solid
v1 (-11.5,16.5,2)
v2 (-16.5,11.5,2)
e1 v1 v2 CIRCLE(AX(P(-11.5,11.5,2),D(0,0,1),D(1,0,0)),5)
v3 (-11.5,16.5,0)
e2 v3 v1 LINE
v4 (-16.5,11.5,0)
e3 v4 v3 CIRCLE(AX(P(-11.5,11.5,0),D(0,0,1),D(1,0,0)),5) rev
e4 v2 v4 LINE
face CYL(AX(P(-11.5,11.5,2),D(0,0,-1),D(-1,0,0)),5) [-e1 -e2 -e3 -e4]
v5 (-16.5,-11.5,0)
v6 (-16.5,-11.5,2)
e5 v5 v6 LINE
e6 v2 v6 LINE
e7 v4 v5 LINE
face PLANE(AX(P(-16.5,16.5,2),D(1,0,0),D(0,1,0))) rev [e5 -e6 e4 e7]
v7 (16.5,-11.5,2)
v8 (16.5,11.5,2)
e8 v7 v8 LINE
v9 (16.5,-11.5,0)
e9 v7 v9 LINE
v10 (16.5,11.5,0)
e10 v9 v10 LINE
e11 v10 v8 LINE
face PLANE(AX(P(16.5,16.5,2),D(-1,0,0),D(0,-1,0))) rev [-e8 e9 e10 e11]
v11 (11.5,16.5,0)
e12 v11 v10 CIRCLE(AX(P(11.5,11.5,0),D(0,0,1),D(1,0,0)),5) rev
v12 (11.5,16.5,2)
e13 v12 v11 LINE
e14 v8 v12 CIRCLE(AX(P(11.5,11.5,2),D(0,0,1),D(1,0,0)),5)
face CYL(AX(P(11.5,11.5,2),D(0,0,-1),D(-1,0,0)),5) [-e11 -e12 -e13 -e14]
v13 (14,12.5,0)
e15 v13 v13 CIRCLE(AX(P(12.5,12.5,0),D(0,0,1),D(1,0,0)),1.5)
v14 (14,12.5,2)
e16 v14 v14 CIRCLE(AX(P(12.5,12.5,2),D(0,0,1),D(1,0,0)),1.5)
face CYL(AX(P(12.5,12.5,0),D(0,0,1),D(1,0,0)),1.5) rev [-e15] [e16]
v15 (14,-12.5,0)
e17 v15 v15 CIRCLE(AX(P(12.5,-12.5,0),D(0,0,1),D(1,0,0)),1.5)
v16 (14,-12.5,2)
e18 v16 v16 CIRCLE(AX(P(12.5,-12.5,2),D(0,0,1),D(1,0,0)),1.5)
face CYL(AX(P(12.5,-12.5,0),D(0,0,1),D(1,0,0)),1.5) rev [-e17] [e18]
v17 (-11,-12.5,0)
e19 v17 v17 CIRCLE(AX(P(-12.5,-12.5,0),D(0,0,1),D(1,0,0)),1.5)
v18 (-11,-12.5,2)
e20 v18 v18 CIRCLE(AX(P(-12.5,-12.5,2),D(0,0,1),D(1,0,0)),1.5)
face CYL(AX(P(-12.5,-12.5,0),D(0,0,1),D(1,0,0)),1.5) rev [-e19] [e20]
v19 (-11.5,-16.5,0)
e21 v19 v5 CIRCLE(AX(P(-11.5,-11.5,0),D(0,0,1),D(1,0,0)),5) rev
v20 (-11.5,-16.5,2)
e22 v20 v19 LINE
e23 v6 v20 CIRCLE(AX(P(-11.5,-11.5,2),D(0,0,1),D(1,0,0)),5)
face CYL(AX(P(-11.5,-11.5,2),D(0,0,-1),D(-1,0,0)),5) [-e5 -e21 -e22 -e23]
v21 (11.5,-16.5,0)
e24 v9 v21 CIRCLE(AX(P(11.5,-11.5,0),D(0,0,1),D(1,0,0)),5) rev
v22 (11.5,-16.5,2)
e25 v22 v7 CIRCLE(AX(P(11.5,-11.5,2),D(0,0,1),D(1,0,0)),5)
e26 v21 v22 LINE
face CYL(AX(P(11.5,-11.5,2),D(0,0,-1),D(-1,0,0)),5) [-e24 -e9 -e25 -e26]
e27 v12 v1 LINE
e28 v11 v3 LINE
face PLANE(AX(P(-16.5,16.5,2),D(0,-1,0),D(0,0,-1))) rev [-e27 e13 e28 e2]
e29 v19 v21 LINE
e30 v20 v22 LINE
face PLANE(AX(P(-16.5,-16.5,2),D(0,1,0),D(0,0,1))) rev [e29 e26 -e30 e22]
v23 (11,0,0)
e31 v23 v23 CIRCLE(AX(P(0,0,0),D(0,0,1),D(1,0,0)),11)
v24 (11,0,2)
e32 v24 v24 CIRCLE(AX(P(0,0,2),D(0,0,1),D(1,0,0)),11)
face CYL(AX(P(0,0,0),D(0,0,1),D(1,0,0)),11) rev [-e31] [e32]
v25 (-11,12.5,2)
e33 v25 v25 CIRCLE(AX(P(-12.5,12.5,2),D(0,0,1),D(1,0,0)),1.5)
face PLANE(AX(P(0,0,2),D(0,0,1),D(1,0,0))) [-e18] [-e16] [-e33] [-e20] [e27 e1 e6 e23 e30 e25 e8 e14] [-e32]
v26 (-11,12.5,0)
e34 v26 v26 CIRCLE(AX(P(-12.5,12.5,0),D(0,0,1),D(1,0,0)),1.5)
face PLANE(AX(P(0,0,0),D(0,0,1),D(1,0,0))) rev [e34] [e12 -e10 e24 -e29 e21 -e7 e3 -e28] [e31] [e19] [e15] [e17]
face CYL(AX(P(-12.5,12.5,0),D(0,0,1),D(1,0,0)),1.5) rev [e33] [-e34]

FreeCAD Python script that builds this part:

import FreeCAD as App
import Part
import Sketcher

V = App.Vector


def edges_at(feature, points):
    """Names of the edges that pass closest to the given points."""
    edges = feature.Shape.Edges
    near = lambda p: min(range(len(edges)), key=lambda i: edges[i].distToShape(Part.Vertex(*p))[0])
    return sorted({f"Edge{near(p) + 1}" for p in points})

doc = App.newDocument("Part")
body = doc.addObject("PartDesign::Body", "Body")

sketch1 = body.newObject("Sketcher::SketchObject", "Sketch")
sketch1.AttachmentSupport = (doc.getObject("XY_Plane"), [""])
sketch1.MapMode = "FlatFace"
sketch1.addGeometry(Part.LineSegment(V(-16.5, 16.5, 0), V(-16.5, -16.5, 0)), False)
sketch1.addGeometry(Part.LineSegment(V(-16.5, -16.5, 0), V(16.5, -16.5, 0)), False)
sketch1.addGeometry(Part.LineSegment(V(16.5, -16.5, 0), V(16.5, 16.5, 0)), False)
sketch1.addGeometry(Part.LineSegment(V(16.5, 16.5, 0), V(-16.5, 16.5, 0)), False)
sketch1.addConstraint(Sketcher.Constraint("Coincident", 0, 2, 1, 1))
sketch1.addConstraint(Sketcher.Constraint("Coincident", 1, 2, 2, 1))
sketch1.addConstraint(Sketcher.Constraint("Coincident", 2, 2, 3, 1))
sketch1.addConstraint(Sketcher.Constraint("Coincident", 3, 2, 0, 1))
sketch1.addConstraint(Sketcher.Constraint("Vertical", 0))
sketch1.addConstraint(Sketcher.Constraint("Horizontal", 1))
sketch1.addConstraint(Sketcher.Constraint("Vertical", 2))
sketch1.addConstraint(Sketcher.Constraint("Horizontal", 3))
sketch1.addConstraint(Sketcher.Constraint("Symmetric", 0, 2, 2, 2, -1, 1))
sketch1.addConstraint(Sketcher.Constraint("Equal", 3, 0))
sketch1.addConstraint(Sketcher.Constraint("DistanceX", 1, 1, 1, 2, 33.0))
pad1 = body.newObject("PartDesign::Pad", "Pad")
pad1.Profile = sketch1
pad1.Length = 2

sketch2 = body.newObject("Sketcher::SketchObject", "Sketch001")
sketch2.AttachmentSupport = (doc.getObject("XY_Plane"), [""])
sketch2.MapMode = "FlatFace"
sketch2.AttachmentOffset = App.Placement(V(0, 0, 2), App.Rotation())
sketch2.addGeometry(Part.Circle(V(-12.5, 12.5, 0), V(0, 0, 1), 1.5), False)
sketch2.addGeometry(Part.Circle(V(-12.5, -12.5, 0), V(0, 0, 1), 1.5), False)
sketch2.addGeometry(Part.Circle(V(12.5, -12.5, 0), V(0, 0, 1), 1.5), False)
sketch2.addGeometry(Part.Circle(V(12.5, 12.5, 0), V(0, 0, 1), 1.5), False)
sketch2.addConstraint(Sketcher.Constraint("Equal", 0, 1))
sketch2.addConstraint(Sketcher.Constraint("Equal", 1, 2))
sketch2.addConstraint(Sketcher.Constraint("Equal", 2, 3))
sketch2.addConstraint(Sketcher.Constraint("Symmetric", 0, 3, 2, 3, -1, 1))
sketch2.addConstraint(Sketcher.Constraint("Symmetric", 1, 3, 3, 3, -1, 1))
sketch2.addConstraint(Sketcher.Constraint("Symmetric", 1, 3, 2, 3, -2))
sketch2.addConstraint(Sketcher.Constraint("Diameter", 0, 3.0))
sketch2.addConstraint(Sketcher.Constraint("DistanceY", 1, 3, 0, 3, 25.0))
sketch2.addConstraint(Sketcher.Constraint("DistanceX", 1, 3, 2, 3, 25.0))
pocket1 = body.newObject("PartDesign::Pocket", "Pocket")
pocket1.Profile = sketch2
pocket1.Type = "ThroughAll"
doc.recompute()

fillet = body.newObject("PartDesign::Fillet", "Fillet")
fillet.Base = (pocket1, edges_at(pocket1, [
    (16.5, -16.5, 1),
    (-16.5, -16.5, 1),
    (-16.5, 16.5, 1),
    (16.5, 16.5, 1),
]))
fillet.Radius = 5

sketch3 = body.newObject("Sketcher::SketchObject", "Sketch002")
sketch3.AttachmentSupport = (doc.getObject("XY_Plane"), [""])
sketch3.MapMode = "FlatFace"
sketch3.AttachmentOffset = App.Placement(V(0, 0, 2), App.Rotation())
sketch3.addGeometry(Part.Circle(V(0, 0, 0), V(0, 0, 1), 11), False)
sketch3.addConstraint(Sketcher.Constraint("Coincident", 0, 3, -1, 1))
sketch3.addConstraint(Sketcher.Constraint("Diameter", 0, 22.0))
pocket2 = body.newObject("PartDesign::Pocket", "Pocket001")
pocket2.Profile = sketch3
pocket2.Type = "ThroughAll"

doc.recompute()
